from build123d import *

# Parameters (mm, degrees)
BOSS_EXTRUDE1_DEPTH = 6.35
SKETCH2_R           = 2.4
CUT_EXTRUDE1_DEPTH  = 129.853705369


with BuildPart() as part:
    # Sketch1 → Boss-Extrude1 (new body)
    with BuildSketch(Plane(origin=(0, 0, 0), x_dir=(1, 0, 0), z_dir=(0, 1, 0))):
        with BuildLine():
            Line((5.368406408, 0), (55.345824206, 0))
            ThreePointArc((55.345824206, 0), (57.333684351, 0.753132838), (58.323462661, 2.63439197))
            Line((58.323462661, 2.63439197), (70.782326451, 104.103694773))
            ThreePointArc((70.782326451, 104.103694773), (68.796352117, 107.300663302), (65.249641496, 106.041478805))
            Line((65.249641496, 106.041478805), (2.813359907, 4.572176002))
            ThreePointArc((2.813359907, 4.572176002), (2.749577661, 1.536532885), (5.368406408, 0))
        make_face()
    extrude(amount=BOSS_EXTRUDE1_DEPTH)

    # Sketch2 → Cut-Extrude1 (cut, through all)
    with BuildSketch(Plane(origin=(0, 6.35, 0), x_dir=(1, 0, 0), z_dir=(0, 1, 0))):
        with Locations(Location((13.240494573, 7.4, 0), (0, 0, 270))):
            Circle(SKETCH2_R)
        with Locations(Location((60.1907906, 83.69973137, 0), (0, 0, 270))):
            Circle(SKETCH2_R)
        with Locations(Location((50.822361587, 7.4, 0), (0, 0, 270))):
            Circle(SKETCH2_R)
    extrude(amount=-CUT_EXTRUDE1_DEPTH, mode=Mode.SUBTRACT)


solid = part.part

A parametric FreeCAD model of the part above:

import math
import FreeCAD as App
import Part
import Sketcher
Q = App.Units.Quantity

doc = App.newDocument("Part")
body = doc.addObject("PartDesign::Body", "Body")

sketch1 = body.newObject("Sketcher::SketchObject", "Sketch")
sketch1.AttachmentSupport = (doc.getObject("XZ_Plane"), [""])
sketch1.MapMode = "FlatFace"
sketch1.addGeometry([
    Part.LineSegment(App.Vector(5.4, 0, 0), App.Vector(55.3, 0, 0)),
    Part.ArcOfCircle(Part.Circle(App.Vector(55.3, -3, 0), App.Vector(0, 0, 1), 3), math.radians(7), math.radians(90)),
    Part.LineSegment(App.Vector(58.3, -2.6, 0), App.Vector(70.8, -104.1, 0)),
    Part.ArcOfCircle(Part.Circle(App.Vector(67.8, -104.5, 0), App.Vector(0, 0, 1), 3), math.radians(-148), math.radians(7)),
    Part.LineSegment(App.Vector(65.2, -106, 0), App.Vector(2.8, -4.6, 0)),
    Part.ArcOfCircle(Part.Circle(App.Vector(5.4, -3, 0), App.Vector(0, 0, 1), 3), math.radians(90), math.radians(212)),
], False)
sketch1.addConstraint([
    Sketcher.Constraint("Tangent", 0, 2, 1, 2),
    Sketcher.Constraint("Tangent", 1, 1, 2, 1),
    Sketcher.Constraint("Tangent", 2, 2, 3, 2),
    Sketcher.Constraint("Tangent", 3, 1, 4, 1),
    Sketcher.Constraint("Tangent", 4, 2, 5, 2),
    Sketcher.Constraint("Tangent", 5, 1, 0, 1),
    Sketcher.Constraint("Horizontal", 0),
    Sketcher.Constraint("Equal", 1, 3),
    Sketcher.Constraint("Equal", 3, 5),
    Sketcher.Constraint("PointOnObject", 0, 2, -1),
    Sketcher.Constraint("Radius", 1, 3.0),
    Sketcher.Constraint("Angle", 2, Q("-83 deg")),
    Sketcher.Constraint("Distance", 2, 102.23132),
    Sketcher.Constraint("Distance", 4, 119.13987),
    Sketcher.Constraint("DistanceX", -1, 1, 3, 1, 65.249641),
])
pad1 = body.newObject("PartDesign::Pad", "Pad")
pad1.Profile = sketch1
pad1.Length = 6.35
pad1.Reversed = True

sketch2 = body.newObject("Sketcher::SketchObject", "Sketch001")
sketch2.AttachmentSupport = (doc.getObject("XZ_Plane"), [""])
sketch2.MapMode = "FlatFace"
sketch2.AttachmentOffset = App.Placement(App.Vector(0, 0, -6.35), App.Rotation())
sketch2.addGeometry([
    Part.Circle(App.Vector(13.2, -7.4, 0), App.Vector(0, 0, 1), 2.4),
    Part.Circle(App.Vector(60.2, -83.7, 0), App.Vector(0, 0, 1), 2.4),
    Part.Circle(App.Vector(50.8, -7.4, 0), App.Vector(0, 0, 1), 2.4),
], False)
sketch2.addConstraint([
    Sketcher.Constraint("Equal", 0, 1),
    Sketcher.Constraint("Equal", 1, 2),
    Sketcher.Constraint("Horizontal", 0, 3, 2, 3),
    Sketcher.Constraint("Diameter", 0, 4.8),
    Sketcher.Constraint("DistanceY", 0, 3, -1, 1, 7.4),
    Sketcher.Constraint("DistanceX", -1, 1, 1, 3, 60.190791),
    Sketcher.Constraint("DistanceY", 1, 3, -1, 1, 83.699731),
    Sketcher.Constraint("DistanceX", -1, 1, 2, 3, 50.822362),
    Sketcher.Constraint("DistanceX", -1, 1, 0, 3, 13.240495),
])
pocket1 = body.newObject("PartDesign::Pocket", "Pocket")
pocket1.Profile = sketch2
pocket1.Type = "ThroughAll"
pocket1.Reversed = True

doc.recompute()
